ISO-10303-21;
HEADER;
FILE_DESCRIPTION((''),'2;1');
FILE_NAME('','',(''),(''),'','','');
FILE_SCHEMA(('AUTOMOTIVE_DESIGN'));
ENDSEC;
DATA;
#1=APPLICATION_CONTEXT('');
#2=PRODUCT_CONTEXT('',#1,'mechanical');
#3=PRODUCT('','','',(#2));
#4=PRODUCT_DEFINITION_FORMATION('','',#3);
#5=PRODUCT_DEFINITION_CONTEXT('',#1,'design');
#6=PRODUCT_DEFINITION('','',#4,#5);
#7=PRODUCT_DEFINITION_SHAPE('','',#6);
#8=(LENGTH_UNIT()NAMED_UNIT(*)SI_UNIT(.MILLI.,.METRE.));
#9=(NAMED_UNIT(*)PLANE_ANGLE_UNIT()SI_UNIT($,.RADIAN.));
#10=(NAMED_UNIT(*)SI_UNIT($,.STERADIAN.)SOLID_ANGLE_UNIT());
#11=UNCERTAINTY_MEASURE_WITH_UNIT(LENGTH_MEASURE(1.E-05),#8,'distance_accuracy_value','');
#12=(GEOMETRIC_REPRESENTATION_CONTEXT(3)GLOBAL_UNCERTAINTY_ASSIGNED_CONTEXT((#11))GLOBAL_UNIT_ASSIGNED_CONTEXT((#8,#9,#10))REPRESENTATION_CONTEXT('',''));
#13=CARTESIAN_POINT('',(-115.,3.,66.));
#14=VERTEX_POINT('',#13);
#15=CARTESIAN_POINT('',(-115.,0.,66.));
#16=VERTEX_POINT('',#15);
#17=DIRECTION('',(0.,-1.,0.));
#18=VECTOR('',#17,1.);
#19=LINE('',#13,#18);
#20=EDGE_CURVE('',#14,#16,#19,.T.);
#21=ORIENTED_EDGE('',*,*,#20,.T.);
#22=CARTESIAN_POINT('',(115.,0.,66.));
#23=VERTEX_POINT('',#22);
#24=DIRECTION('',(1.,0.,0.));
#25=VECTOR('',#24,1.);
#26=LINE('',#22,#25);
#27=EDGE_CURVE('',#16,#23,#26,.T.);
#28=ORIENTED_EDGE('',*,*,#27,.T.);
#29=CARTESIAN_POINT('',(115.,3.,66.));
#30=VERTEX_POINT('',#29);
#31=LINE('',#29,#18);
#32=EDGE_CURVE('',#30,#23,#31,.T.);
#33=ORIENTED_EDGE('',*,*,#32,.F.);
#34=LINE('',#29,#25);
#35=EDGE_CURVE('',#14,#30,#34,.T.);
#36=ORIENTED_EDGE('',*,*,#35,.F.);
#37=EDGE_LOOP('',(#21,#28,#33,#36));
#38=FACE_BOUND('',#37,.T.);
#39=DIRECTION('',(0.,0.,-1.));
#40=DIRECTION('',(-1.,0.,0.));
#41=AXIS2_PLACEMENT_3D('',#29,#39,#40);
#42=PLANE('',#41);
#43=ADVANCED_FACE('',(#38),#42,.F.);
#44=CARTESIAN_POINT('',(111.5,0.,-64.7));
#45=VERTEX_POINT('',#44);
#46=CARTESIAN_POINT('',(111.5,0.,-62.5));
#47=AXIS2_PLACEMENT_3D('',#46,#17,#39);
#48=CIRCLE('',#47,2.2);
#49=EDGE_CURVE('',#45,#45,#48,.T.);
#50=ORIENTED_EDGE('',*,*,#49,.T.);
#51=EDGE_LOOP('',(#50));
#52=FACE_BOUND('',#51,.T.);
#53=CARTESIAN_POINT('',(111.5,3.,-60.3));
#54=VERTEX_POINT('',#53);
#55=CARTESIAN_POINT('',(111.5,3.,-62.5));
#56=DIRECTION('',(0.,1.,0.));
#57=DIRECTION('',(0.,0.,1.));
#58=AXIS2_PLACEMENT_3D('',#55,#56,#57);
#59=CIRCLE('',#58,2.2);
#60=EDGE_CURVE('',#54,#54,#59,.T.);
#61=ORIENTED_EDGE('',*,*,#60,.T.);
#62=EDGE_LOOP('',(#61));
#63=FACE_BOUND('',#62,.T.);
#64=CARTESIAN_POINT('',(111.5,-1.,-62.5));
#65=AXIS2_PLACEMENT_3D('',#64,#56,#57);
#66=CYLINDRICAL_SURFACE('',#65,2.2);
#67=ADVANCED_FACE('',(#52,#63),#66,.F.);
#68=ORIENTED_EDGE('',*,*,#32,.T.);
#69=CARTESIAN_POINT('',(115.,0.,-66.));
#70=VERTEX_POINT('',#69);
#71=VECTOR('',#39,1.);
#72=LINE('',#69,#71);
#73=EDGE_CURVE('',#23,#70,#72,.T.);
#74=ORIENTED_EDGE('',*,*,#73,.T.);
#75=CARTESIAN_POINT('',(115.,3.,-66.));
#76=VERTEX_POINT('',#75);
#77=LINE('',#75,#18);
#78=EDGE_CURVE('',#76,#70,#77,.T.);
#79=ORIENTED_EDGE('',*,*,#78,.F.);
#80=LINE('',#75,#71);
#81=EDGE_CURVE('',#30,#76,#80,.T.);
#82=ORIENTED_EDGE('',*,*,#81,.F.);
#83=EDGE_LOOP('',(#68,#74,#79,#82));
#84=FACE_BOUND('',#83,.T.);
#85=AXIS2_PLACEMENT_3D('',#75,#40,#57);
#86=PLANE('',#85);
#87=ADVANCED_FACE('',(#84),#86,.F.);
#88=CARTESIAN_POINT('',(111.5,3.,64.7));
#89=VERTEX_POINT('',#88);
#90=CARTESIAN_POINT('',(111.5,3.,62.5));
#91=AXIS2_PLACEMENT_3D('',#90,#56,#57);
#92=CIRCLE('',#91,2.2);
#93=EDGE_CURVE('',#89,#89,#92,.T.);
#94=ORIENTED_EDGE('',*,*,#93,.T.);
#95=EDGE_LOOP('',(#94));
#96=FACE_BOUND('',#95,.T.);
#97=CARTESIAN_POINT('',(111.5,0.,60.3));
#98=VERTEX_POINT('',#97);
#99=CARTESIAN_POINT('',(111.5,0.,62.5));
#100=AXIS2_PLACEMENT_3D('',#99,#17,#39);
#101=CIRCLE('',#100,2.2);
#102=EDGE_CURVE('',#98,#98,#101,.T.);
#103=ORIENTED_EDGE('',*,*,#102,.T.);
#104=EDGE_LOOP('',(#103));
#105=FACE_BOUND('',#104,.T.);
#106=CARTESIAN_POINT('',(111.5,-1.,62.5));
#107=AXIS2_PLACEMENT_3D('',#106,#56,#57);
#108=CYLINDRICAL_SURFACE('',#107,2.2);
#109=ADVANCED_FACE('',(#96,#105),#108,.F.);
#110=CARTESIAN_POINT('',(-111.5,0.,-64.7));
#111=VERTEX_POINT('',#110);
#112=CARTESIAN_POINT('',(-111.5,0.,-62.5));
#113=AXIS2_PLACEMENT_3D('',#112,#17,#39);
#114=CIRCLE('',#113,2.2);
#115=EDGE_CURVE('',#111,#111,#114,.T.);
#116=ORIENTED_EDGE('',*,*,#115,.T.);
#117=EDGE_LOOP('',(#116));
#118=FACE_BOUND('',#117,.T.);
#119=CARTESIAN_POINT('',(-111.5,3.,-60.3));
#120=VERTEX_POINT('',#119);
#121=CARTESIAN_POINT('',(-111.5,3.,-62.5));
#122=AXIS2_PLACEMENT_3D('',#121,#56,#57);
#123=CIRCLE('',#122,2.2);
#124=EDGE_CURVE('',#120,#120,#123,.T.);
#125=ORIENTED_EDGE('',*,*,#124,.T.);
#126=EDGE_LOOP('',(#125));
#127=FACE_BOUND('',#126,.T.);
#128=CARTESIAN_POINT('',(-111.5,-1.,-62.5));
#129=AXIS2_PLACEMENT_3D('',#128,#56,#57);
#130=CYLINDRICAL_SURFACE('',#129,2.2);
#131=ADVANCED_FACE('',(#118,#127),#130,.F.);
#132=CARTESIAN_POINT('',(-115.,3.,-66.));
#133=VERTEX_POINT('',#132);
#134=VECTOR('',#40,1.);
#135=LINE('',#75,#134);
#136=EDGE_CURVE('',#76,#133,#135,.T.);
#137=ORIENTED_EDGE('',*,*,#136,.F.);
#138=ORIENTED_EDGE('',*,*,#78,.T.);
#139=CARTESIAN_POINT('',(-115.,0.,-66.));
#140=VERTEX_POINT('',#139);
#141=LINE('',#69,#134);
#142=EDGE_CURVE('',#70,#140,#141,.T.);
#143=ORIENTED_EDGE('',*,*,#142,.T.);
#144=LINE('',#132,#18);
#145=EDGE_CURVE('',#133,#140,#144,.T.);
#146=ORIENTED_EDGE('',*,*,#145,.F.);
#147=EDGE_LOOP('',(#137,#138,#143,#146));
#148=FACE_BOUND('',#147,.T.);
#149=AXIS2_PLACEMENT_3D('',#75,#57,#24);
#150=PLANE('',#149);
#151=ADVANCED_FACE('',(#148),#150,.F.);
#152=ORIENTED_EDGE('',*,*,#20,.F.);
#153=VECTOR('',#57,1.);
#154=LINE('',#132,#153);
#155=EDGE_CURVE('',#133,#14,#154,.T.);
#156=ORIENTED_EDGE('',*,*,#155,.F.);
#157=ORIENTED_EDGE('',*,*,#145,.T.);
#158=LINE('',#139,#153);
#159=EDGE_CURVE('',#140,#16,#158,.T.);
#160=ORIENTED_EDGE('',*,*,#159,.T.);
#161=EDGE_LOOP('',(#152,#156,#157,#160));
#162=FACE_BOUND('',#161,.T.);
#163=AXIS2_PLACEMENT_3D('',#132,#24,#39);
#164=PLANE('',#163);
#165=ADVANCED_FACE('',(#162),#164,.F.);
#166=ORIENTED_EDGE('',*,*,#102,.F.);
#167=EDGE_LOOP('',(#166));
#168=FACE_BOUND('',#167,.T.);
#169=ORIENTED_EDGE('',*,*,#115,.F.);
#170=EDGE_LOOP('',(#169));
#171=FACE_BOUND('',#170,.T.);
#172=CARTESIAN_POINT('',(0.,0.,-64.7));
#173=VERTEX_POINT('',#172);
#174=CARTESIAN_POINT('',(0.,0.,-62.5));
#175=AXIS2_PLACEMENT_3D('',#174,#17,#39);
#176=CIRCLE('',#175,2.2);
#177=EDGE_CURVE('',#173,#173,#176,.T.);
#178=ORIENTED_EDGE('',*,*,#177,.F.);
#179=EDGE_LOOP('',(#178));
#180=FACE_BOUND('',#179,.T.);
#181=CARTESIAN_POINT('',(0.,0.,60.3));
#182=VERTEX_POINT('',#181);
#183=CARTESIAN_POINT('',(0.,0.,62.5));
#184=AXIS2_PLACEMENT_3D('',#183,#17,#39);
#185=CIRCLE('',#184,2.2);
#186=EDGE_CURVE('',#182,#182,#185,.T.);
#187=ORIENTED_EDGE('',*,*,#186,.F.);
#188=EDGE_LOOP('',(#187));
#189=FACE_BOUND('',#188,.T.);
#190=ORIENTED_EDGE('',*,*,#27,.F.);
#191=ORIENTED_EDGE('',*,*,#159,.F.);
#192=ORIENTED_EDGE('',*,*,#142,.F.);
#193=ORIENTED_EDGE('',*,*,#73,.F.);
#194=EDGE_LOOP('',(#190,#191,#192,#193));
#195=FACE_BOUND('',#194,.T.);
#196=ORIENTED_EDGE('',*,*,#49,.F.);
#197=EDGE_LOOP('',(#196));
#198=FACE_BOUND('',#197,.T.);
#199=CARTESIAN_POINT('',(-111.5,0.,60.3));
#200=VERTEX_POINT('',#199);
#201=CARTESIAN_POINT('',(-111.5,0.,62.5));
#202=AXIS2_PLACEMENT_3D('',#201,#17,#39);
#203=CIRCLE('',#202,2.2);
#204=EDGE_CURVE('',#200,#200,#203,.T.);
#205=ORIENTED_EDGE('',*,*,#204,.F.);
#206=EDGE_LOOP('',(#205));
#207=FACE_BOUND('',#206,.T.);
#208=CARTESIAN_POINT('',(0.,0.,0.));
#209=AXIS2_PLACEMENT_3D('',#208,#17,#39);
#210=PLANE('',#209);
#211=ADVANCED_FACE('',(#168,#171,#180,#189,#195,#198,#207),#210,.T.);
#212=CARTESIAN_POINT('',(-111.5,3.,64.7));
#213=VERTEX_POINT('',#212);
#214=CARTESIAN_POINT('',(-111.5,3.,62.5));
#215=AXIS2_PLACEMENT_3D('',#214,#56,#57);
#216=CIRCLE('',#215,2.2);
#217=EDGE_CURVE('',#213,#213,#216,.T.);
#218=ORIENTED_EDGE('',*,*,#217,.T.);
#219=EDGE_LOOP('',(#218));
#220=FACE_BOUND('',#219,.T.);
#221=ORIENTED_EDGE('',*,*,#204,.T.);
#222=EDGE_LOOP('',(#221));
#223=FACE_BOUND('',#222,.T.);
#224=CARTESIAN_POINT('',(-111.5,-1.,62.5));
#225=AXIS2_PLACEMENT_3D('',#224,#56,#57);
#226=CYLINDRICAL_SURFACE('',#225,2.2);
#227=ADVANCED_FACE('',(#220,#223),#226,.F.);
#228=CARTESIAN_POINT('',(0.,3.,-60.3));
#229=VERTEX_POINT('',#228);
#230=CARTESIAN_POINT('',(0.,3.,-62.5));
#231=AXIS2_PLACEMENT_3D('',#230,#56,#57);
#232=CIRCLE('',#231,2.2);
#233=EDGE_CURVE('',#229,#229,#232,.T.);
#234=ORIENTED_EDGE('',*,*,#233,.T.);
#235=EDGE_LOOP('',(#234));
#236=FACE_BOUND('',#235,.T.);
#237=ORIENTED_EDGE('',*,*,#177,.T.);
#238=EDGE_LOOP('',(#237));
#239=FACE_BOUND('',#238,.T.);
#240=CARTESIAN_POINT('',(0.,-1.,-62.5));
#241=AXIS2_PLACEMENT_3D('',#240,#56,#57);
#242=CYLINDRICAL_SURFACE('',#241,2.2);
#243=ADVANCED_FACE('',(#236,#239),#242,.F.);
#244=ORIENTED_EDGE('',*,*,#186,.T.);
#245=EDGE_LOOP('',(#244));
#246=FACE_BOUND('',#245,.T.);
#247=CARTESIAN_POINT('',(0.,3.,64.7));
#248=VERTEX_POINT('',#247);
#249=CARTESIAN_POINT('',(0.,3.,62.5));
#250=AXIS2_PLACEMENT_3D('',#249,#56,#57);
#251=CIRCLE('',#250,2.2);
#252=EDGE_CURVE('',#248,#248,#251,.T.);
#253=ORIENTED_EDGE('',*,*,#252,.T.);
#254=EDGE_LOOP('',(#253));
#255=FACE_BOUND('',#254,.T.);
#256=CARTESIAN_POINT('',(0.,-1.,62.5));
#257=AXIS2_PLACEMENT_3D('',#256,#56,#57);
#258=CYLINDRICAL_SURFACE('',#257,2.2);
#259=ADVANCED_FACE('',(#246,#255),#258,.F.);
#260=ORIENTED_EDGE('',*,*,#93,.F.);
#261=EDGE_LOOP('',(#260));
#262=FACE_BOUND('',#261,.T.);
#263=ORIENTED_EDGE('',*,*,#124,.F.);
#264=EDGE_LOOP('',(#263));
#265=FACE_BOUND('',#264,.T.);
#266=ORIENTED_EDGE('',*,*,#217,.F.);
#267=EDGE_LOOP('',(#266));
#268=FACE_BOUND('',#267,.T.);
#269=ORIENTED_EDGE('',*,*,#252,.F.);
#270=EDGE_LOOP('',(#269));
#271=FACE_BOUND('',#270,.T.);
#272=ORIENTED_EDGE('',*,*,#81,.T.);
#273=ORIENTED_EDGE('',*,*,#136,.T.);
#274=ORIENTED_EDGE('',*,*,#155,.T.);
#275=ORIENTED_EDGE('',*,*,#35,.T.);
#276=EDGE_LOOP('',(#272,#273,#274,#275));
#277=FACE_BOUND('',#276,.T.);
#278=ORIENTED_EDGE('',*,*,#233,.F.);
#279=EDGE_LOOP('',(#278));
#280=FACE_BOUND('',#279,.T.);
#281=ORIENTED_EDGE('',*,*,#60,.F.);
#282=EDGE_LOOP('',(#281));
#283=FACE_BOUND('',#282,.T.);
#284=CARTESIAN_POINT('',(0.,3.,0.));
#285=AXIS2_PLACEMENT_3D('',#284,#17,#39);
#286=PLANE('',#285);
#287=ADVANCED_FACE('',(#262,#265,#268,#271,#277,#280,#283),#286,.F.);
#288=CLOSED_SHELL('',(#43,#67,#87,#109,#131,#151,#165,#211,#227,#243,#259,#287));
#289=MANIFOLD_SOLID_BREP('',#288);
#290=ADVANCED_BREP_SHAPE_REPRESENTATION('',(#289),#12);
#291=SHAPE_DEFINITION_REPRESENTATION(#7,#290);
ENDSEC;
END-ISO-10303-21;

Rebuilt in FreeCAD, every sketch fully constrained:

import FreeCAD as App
import Part
import Sketcher
from FreeCAD import Vector
Q = App.Units.Quantity

doc = App.newDocument("Part")
body = doc.addObject("PartDesign::Body", "Body")

# Sketch on XZ plane
sketch1 = body.newObject("Sketcher::SketchObject", "Sketch")
sketch1.AttachmentSupport = (doc.getObject("XZ_Plane"), [""])
sketch1.MapMode = "FlatFace"
sketch1.addGeometry(Part.LineSegment(Vector(-115, -66, 0), Vector(-115, 66, 0)), False)
sketch1.addGeometry(Part.LineSegment(Vector(-115, 66, 0), Vector(115, 66, 0)), False)
sketch1.addGeometry(Part.LineSegment(Vector(115, 66, 0), Vector(115, -66, 0)), False)
sketch1.addGeometry(Part.LineSegment(Vector(115, -66, 0), Vector(-115, -66, 0)), False)
sketch1.addConstraint(Sketcher.Constraint("Coincident", 0, 2, 1, 1))
sketch1.addConstraint(Sketcher.Constraint("Coincident", 1, 2, 2, 1))
sketch1.addConstraint(Sketcher.Constraint("Coincident", 2, 2, 3, 1))
sketch1.addConstraint(Sketcher.Constraint("Coincident", 3, 2, 0, 1))
sketch1.addConstraint(Sketcher.Constraint("Vertical", 0))
sketch1.addConstraint(Sketcher.Constraint("Horizontal", 1))
sketch1.addConstraint(Sketcher.Constraint("Vertical", 2))
sketch1.addConstraint(Sketcher.Constraint("Horizontal", 3))
sketch1.addConstraint(Sketcher.Constraint("Symmetric", 0, 2, 2, 2, -1, 1))
sketch1.addConstraint(Sketcher.Constraint("DistanceX", 1, 1, 1, 2, Q("230 mm")))
sketch1.addConstraint(Sketcher.Constraint("DistanceY", 0, 1, 0, 2, Q("132 mm")))
pad1 = body.newObject("PartDesign::Pad", "Pad")
pad1.Profile = sketch1
pad1.Length = 3
pad1.Reversed = True

# Sketch on XZ plane
sketch2 = body.newObject("Sketcher::SketchObject", "Sketch001")
sketch2.AttachmentSupport = (doc.getObject("XZ_Plane"), [""])
sketch2.MapMode = "FlatFace"
sketch2.AttachmentOffset = App.Placement(Vector(0, 0, -3), App.Rotation())
sketch2.addGeometry(Part.Circle(Vector(-111.5, -62.5, 0), Vector(0, 0, 1), 2.2), False)
sketch2.addGeometry(Part.Circle(Vector(0, -62.5, 0), Vector(0, 0, 1), 2.2), False)
sketch2.addGeometry(Part.Circle(Vector(111.5, -62.5, 0), Vector(0, 0, 1), 2.2), False)
sketch2.addGeometry(Part.Circle(Vector(111.5, 62.5, 0), Vector(0, 0, 1), 2.2), False)
sketch2.addGeometry(Part.Circle(Vector(0, 62.5, 0), Vector(0, 0, 1), 2.2), False)
sketch2.addGeometry(Part.Circle(Vector(-111.5, 62.5, 0), Vector(0, 0, 1), 2.2), False)
sketch2.addConstraint(Sketcher.Constraint("Equal", 0, 1))
sketch2.addConstraint(Sketcher.Constraint("Equal", 1, 2))
sketch2.addConstraint(Sketcher.Constraint("Equal", 2, 3))
sketch2.addConstraint(Sketcher.Constraint("Equal", 3, 4))
sketch2.addConstraint(Sketcher.Constraint("Equal", 4, 5))
sketch2.addConstraint(Sketcher.Constraint("Symmetric", 0, 3, 3, 3, -1, 1))
sketch2.addConstraint(Sketcher.Constraint("Symmetric", 1, 3, 4, 3, -1, 1))
sketch2.addConstraint(Sketcher.Constraint("Symmetric", 2, 3, 5, 3, -1, 1))
sketch2.addConstraint(Sketcher.Constraint("Symmetric", 0, 3, 2, 3, -2))
sketch2.addConstraint(Sketcher.Constraint("PointOnObject", 1, 3, -2))
sketch2.addConstraint(Sketcher.Constraint("Horizontal", 0, 3, 1, 3))
sketch2.addConstraint(Sketcher.Constraint("Diameter", 0, Q("4.4 mm")))
sketch2.addConstraint(Sketcher.Constraint("DistanceX", 0, 3, 2, 3, Q("223 mm")))
sketch2.addConstraint(Sketcher.Constraint("DistanceY", 2, 3, 3, 3, Q("125 mm")))
pocket1 = body.newObject("PartDesign::Pocket", "Pocket")
pocket1.Profile = sketch2
pocket1.Length = 4
pocket1.Reversed = True

doc.recompute()
